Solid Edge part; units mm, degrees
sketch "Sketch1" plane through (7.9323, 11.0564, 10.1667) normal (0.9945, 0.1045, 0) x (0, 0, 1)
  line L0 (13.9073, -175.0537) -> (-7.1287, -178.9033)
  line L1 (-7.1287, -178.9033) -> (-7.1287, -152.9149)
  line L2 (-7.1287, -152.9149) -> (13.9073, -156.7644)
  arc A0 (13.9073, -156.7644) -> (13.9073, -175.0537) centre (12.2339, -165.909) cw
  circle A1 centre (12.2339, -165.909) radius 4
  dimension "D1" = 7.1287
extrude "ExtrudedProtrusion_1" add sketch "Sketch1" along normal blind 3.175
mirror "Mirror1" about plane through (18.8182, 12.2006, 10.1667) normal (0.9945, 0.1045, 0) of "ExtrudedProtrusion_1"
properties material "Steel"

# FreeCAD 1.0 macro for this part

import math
import FreeCAD as App
import Part
import Sketcher

V = App.Vector
Q = App.Units.Quantity

doc = App.newDocument("Part")
body = doc.addObject("PartDesign::Body", "Body")
body.AllowCompound = True

# Sketch on an angled plane
sketch1 = body.newObject("Sketcher::SketchObject", "Sketch")
sketch1.Placement = App.Placement(V(7.9323, 11.0564, 10.1667), App.Rotation(V(0, 0, 1), V(0.104528463, -0.994521895, 0), V(0.994521895, 0.104528463, 0), "ZXY"))
sketch1.addGeometry(Part.LineSegment(V(-7.1, -178.9, 0), V(13.9, -175.1, 0)), False)
sketch1.addGeometry(Part.ArcOfCircle(Part.Circle(V(12.2, -165.9, 0), V(0, 0, 1), 9.3), math.radians(-80), math.radians(80)), False)
sketch1.addGeometry(Part.LineSegment(V(13.9, -156.8, 0), V(-7.1, -152.9, 0)), False)
sketch1.addGeometry(Part.LineSegment(V(-7.1, -152.9, 0), V(-7.1, -178.9, 0)), False)
sketch1.addGeometry(Part.Circle(V(12.2, -165.9, 0), V(0, 0, 1), 4), False)
sketch1.addConstraint(Sketcher.Constraint("Tangent", 0, 2, 1, 1))
sketch1.addConstraint(Sketcher.Constraint("Tangent", 1, 2, 2, 1))
sketch1.addConstraint(Sketcher.Constraint("Coincident", 2, 2, 3, 1))
sketch1.addConstraint(Sketcher.Constraint("Coincident", 3, 2, 0, 1))
sketch1.addConstraint(Sketcher.Constraint("Vertical", 3))
sketch1.addConstraint(Sketcher.Constraint("Coincident", 4, 3, 1, 3))
sketch1.addConstraint(Sketcher.Constraint("Vertical", 0, 2, 1, 2))
sketch1.addConstraint(Sketcher.Constraint("Radius", 1, Q("0.366 in")))
sketch1.addConstraint(Sketcher.Constraint("Diameter", 4, Q("8 mm")))
sketch1.addConstraint(Sketcher.Constraint("DistanceX", 2, 2, -1, 1, Q("7.1287 mm")))
sketch1.addConstraint(Sketcher.Constraint("Angle", 0, Q("10.3704 deg")))
sketch1.addConstraint(Sketcher.Constraint("DistanceY", 3, 2, 3, 1, Q("25.9884 mm")))
sketch1.addConstraint(Sketcher.Constraint("DistanceY", 1, 3, -1, 1, Q("165.909 mm")))
pad1 = body.newObject("PartDesign::Pad", "Pad")
pad1.Profile = sketch1
pad1.Length = Q("0.125 in")
doc.recompute()

datumplane = body.newObject("PartDesign::Plane", "DatumPlane")
datumplane.Placement = App.Placement(V(19.880912, 2.089568, 0), App.Rotation(V(-0.104528463, 0.994521895, 0), V(0, 0, -1), V(-0.994521895, -0.104528463, 0), "ZXY"))
mirrored = body.newObject("PartDesign::Mirrored", "Mirrored")
mirrored.Originals = [pad1]
mirrored.MirrorPlane = (datumplane, [""])
body.Tip = mirrored

doc.recompute()
